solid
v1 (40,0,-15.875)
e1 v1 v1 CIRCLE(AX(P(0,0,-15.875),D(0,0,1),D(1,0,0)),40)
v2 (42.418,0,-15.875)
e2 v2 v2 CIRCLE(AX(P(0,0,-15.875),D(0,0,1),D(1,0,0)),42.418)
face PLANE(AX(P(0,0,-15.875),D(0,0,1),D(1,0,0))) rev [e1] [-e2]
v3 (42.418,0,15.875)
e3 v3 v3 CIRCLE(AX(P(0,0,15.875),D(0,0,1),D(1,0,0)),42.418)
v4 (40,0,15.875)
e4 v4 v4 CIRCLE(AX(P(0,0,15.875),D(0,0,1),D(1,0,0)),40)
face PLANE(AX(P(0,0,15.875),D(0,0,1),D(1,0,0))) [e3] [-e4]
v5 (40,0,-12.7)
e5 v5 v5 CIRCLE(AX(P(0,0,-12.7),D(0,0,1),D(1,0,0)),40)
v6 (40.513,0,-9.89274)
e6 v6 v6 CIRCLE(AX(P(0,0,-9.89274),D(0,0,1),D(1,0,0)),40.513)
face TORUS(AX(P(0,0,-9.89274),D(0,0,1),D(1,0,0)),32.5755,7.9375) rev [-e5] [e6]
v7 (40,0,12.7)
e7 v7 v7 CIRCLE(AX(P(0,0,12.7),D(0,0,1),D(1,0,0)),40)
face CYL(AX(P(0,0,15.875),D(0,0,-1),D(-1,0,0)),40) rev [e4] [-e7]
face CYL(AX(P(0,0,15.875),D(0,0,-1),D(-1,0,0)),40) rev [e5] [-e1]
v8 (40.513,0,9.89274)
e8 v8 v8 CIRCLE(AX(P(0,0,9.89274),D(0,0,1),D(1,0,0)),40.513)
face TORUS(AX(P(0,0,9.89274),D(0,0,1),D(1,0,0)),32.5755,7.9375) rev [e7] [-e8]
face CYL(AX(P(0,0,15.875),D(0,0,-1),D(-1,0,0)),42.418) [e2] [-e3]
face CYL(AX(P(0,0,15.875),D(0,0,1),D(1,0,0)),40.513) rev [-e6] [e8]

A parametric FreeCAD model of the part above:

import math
import FreeCAD as App
import Part
import Sketcher
from FreeCAD import Vector
Q = App.Units.Quantity

doc = App.newDocument("Part")
body = doc.addObject("PartDesign::Body", "Body")

# Sketch on XY plane
sketch1 = doc.addObject("Sketcher::SketchObject", "Sketch")
body.addObject(sketch1)
sketch1.AttachmentSupport = (doc.XY_Plane, [""])
sketch1.MapMode = "FlatFace"
sketch1.addGeometry(Part.Circle(Vector(0, 0, 0), Vector(0, 0, 1), 42.418), False)
sketch1.addGeometry(Part.Circle(Vector(0, 0, 0), Vector(0, 0, 1), 40), False)
sketch1.addConstraint(Sketcher.Constraint("Coincident", 0, 3, -1, 1))
sketch1.addConstraint(Sketcher.Constraint("Coincident", 1, 3, -1, 1))
sketch1.addConstraint(Sketcher.Constraint("Diameter", 0, Q("3.34 in")))
sketch1.addConstraint(Sketcher.Constraint("Diameter", 1, Q("80 mm")))
pad1 = doc.addObject("PartDesign::Pad", "Pad")
body.addObject(pad1)
pad1.Profile = sketch1
pad1.Length = Q("1.25 in")
pad1.Midplane = True

# Sketch on YZ plane
sketch2 = doc.addObject("Sketcher::SketchObject", "Sketch001")
body.addObject(sketch2)
sketch2.AttachmentSupport = (doc.YZ_Plane, [""])
sketch2.MapMode = "FlatFace"
sketch2.addGeometry(Part.LineSegment(Vector(40.513, -9.89274, 0), Vector(40.513, 9.89274, 0)), False)
sketch2.addGeometry(Part.ArcOfCircle(Part.Circle(Vector(32.5755, 9.89274, 0), Vector(0, 0, 1), 7.9375), math.radians(0), math.radians(20.711984)), False)
sketch2.addGeometry(Part.LineSegment(Vector(40, 12.7, 0), Vector(40, 15.875, 0)), False)
sketch2.addGeometry(Part.LineSegment(Vector(40, 15.875, 0), Vector(0, 15.875, 0)), False)
sketch2.addGeometry(Part.LineSegment(Vector(0, 15.875, 0), Vector(0, -15.875, 0)), False)
sketch2.addGeometry(Part.LineSegment(Vector(0, -15.875, 0), Vector(40, -15.875, 0)), False)
sketch2.addGeometry(Part.LineSegment(Vector(40, -15.875, 0), Vector(40, -12.7, 0)), False)
sketch2.addGeometry(Part.ArcOfCircle(Part.Circle(Vector(32.5755, -9.89274, 0), Vector(0, 0, 1), 7.9375), math.radians(-20.711984), math.radians(0)), False)
sketch2.addConstraint(Sketcher.Constraint("Tangent", 0, 2, 1, 1))
sketch2.addConstraint(Sketcher.Constraint("Coincident", 1, 2, 2, 1))
sketch2.addConstraint(Sketcher.Constraint("Coincident", 2, 2, 3, 1))
sketch2.addConstraint(Sketcher.Constraint("Coincident", 3, 2, 4, 1))
sketch2.addConstraint(Sketcher.Constraint("Coincident", 4, 2, 5, 1))
sketch2.addConstraint(Sketcher.Constraint("Coincident", 5, 2, 6, 1))
sketch2.addConstraint(Sketcher.Constraint("Coincident", 6, 2, 7, 1))
sketch2.addConstraint(Sketcher.Constraint("Tangent", 7, 2, 0, 1))
sketch2.addConstraint(Sketcher.Constraint("Vertical", 0))
sketch2.addConstraint(Sketcher.Constraint("Vertical", 2))
sketch2.addConstraint(Sketcher.Constraint("Horizontal", 3))
sketch2.addConstraint(Sketcher.Constraint("Vertical", 4))
sketch2.addConstraint(Sketcher.Constraint("Horizontal", 5))
sketch2.addConstraint(Sketcher.Constraint("Vertical", 6))
sketch2.addConstraint(Sketcher.Constraint("Equal", 1, 7))
sketch2.addConstraint(Sketcher.Constraint("Symmetric", 3, 2, 4, 2, -1, 1))
sketch2.addConstraint(Sketcher.Constraint("Symmetric", 1, 2, 6, 2, -1))
sketch2.addConstraint(Sketcher.Constraint("Radius", 1, Q("0.3125 in")))
sketch2.addConstraint(Sketcher.Constraint("DistanceY", 6, 2, 1, 2, Q("1 in")))
sketch2.addConstraint(Sketcher.Constraint("DistanceY", 4, 2, 4, 1, Q("1.25 in")))
sketch2.addConstraint(Sketcher.Constraint("DistanceX", -1, 1, 0, 2, Q("1.595 in")))
sketch2.addConstraint(Sketcher.Constraint("DistanceX", 3, 2, 3, 1, Q("40 mm")))
groove = doc.addObject("PartDesign::Groove", "Groove")
body.addObject(groove)
groove.Profile = sketch2
groove.ReferenceAxis = (sketch2, ["V_Axis"])
groove.Angle = 360

doc.recompute()
